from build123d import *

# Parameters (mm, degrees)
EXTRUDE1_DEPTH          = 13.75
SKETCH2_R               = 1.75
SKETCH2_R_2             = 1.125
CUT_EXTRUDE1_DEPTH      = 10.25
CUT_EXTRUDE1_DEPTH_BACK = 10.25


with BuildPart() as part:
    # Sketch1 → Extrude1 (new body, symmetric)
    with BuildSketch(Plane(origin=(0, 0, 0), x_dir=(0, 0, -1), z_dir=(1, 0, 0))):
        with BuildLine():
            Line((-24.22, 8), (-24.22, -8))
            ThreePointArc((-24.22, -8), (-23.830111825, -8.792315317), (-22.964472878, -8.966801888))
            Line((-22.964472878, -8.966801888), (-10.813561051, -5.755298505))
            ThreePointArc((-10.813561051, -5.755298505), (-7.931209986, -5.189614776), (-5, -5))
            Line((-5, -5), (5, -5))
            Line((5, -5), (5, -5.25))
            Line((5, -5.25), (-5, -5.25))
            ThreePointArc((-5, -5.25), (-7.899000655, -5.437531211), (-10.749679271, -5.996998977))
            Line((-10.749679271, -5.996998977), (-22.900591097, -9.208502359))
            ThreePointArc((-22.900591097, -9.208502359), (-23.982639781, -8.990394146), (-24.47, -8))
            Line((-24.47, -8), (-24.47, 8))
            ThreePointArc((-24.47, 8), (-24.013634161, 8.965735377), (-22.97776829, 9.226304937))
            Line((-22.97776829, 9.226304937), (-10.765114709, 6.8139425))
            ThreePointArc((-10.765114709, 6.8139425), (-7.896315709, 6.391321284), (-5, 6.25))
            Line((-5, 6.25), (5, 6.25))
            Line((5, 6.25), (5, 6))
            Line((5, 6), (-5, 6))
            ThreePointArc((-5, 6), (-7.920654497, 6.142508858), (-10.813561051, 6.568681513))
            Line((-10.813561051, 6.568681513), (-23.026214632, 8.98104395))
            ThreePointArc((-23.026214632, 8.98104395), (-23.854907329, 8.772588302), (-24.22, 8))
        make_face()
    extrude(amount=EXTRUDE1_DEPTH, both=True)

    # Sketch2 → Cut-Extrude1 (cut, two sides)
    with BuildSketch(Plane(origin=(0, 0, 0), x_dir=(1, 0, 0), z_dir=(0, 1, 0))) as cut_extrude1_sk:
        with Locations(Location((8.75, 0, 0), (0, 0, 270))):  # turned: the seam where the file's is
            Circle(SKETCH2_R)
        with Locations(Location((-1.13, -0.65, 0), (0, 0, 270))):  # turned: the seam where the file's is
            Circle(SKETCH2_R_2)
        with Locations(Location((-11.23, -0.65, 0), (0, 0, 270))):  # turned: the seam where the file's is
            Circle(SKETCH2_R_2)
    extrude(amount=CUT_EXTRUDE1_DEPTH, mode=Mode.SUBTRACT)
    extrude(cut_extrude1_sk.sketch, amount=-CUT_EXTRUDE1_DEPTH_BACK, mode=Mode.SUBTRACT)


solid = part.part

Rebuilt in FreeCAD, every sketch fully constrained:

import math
import FreeCAD as App
import Part
import Sketcher
Q = App.Units.Quantity

doc = App.newDocument("Part")
body = doc.addObject("PartDesign::Body", "Body")

# Sketch on YZ plane
sketch1 = body.newObject("Sketcher::SketchObject", "Sketch")
sketch1.AttachmentSupport = (doc.getObject("YZ_Plane"), [""])
sketch1.MapMode = "FlatFace"
sketch1.addGeometry([
    Part.LineSegment(App.Vector(-8, 24.22, 0), App.Vector(8, 24.22, 0)),  # 0
    Part.ArcOfCircle(Part.Circle(App.Vector(8, 23.22, 0), App.Vector(0, 0, 1), 1), math.radians(-11.173777), math.radians(90)),  # 1
    Part.LineSegment(App.Vector(8.981044, 23.026215, 0), App.Vector(6.568682, 10.813561, 0)),  # 2
    Part.ArcOfCircle(Part.Circle(App.Vector(36, 5, 0), App.Vector(0, 0, 1), 30), math.radians(168.826223), math.radians(180)),  # 3
    Part.LineSegment(App.Vector(6, 5, 0), App.Vector(6, -5, 0)),  # 4
    Part.LineSegment(App.Vector(6, -5, 0), App.Vector(6.25, -5, 0)),  # 5
    Part.LineSegment(App.Vector(6.25, -5, 0), App.Vector(6.25, 5, 0)),  # 6
    Part.ArcOfCircle(Part.Circle(App.Vector(36, 5, 0), App.Vector(0, 0, 1), 29.75), math.radians(168.826223), math.radians(180)),  # 7
    Part.LineSegment(App.Vector(6.813942, 10.765115, 0), App.Vector(9.226305, 22.977768, 0)),  # 8
    Part.ArcOfCircle(Part.Circle(App.Vector(8, 23.22, 0), App.Vector(0, 0, 1), 1.25), math.radians(-11.173777), math.radians(90)),  # 9
    Part.LineSegment(App.Vector(8, 24.47, 0), App.Vector(-8, 24.47, 0)),  # 10
    Part.ArcOfCircle(Part.Circle(App.Vector(-8, 23.22, 0), App.Vector(0, 0, 1), 1.25), math.radians(90), math.radians(194.804822)),  # 11
    Part.LineSegment(App.Vector(-9.208502, 22.900591, 0), App.Vector(-5.996999, 10.749679, 0)),  # 12
    Part.ArcOfCircle(Part.Circle(App.Vector(-27.751248, 5, 0), App.Vector(0, 0, 1), 22.501248), math.radians(0), math.radians(14.804822)),  # 13
    Part.LineSegment(App.Vector(-5.25, 5, 0), App.Vector(-5.25, -5, 0)),  # 14
    Part.LineSegment(App.Vector(-5.25, -5, 0), App.Vector(-5, -5, 0)),  # 15
    Part.LineSegment(App.Vector(-5, -5, 0), App.Vector(-5, 5, 0)),  # 16
    Part.ArcOfCircle(Part.Circle(App.Vector(-27.751249, 5, 0), App.Vector(0, 0, 1), 22.751249), math.radians(0), math.radians(14.804822)),  # 17
    Part.LineSegment(App.Vector(-5.755299, 10.813561, 0), App.Vector(-8.966802, 22.964473, 0)),  # 18
    Part.ArcOfCircle(Part.Circle(App.Vector(-8, 23.22, 0), App.Vector(0, 0, 1), 1), math.radians(90), math.radians(194.804822)),  # 19
], False)
sketch1.addConstraint([
    Sketcher.Constraint("Tangent", 0, 2, 1, 2),
    Sketcher.Constraint("Tangent", 1, 1, 2, 1),
    Sketcher.Constraint("Tangent", 2, 2, 3, 1),
    Sketcher.Constraint("Tangent", 3, 2, 4, 1),
    Sketcher.Constraint("Coincident", 4, 2, 5, 1),
    Sketcher.Constraint("Coincident", 5, 2, 6, 1),
    Sketcher.Constraint("Tangent", 6, 2, 7, 2),
    Sketcher.Constraint("Tangent", 7, 1, 8, 1),
    Sketcher.Constraint("Tangent", 8, 2, 9, 1),
    Sketcher.Constraint("Tangent", 9, 2, 10, 1),
    Sketcher.Constraint("Tangent", 10, 2, 11, 1),
    Sketcher.Constraint("Tangent", 11, 2, 12, 1),
    Sketcher.Constraint("Tangent", 12, 2, 13, 2),
    Sketcher.Constraint("Tangent", 13, 1, 14, 1),
    Sketcher.Constraint("Coincident", 14, 2, 15, 1),
    Sketcher.Constraint("Coincident", 15, 2, 16, 1),
    Sketcher.Constraint("Tangent", 16, 2, 17, 1),
    Sketcher.Constraint("Tangent", 17, 2, 18, 1),
    Sketcher.Constraint("Tangent", 18, 2, 19, 2),
    Sketcher.Constraint("Tangent", 19, 1, 0, 1),
    Sketcher.Constraint("Horizontal", 0),
    Sketcher.Constraint("Vertical", 4),
    Sketcher.Constraint("Horizontal", 5),
    Sketcher.Constraint("Vertical", 6),
    Sketcher.Constraint("Horizontal", 10),
    Sketcher.Constraint("Vertical", 14),
    Sketcher.Constraint("Horizontal", 15),
    Sketcher.Constraint("Vertical", 16),
    Sketcher.Constraint("Coincident", 7, 3, 3, 3),
    Sketcher.Constraint("Coincident", 9, 3, 1, 3),
    Sketcher.Constraint("Coincident", 17, 3, 13, 3),
    Sketcher.Constraint("Coincident", 19, 3, 11, 3),
    Sketcher.Constraint("Equal", 9, 11),
    Sketcher.Constraint("Parallel", 2, 8),
    Sketcher.Constraint("Parallel", 12, 18),
    Sketcher.Constraint("Horizontal", 7, 3, 13, 3),
    Sketcher.Constraint("Horizontal", 5, 2, 14, 2),
    Sketcher.Constraint("Horizontal", 2, 2, 17, 2),
    Sketcher.Constraint("Radius", 1, Q("1 mm")),
    Sketcher.Constraint("Radius", 3, Q("30 mm")),
    Sketcher.Constraint("DistanceX", 0, 1, 0, 2, Q("16 mm")),
    Sketcher.Constraint("DistanceY", 4, 2, 4, 1, Q("10 mm")),
    Sketcher.Constraint("Radius", 7, Q("29.75 mm")),
    Sketcher.Constraint("DistanceX", -1, 1, 1, 3, Q("8 mm")),
    Sketcher.Constraint("DistanceX", -1, 1, 3, 3, Q("36 mm")),
    Sketcher.Constraint("DistanceY", -1, 1, 3, 3, Q("5 mm")),
    Sketcher.Constraint("DistanceX", 15, 2, -1, 1, Q("5 mm")),
    Sketcher.Constraint("DistanceY", -1, 1, 1, 3, Q("23.22 mm")),
])
pad1 = body.newObject("PartDesign::Pad", "Pad")
pad1.Profile = sketch1
pad1.Length = 27.5
pad1.Midplane = True

# Sketch on XZ plane
sketch2 = body.newObject("Sketcher::SketchObject", "Sketch001")
sketch2.AttachmentSupport = (doc.getObject("XZ_Plane"), [""])
sketch2.MapMode = "FlatFace"
sketch2.addGeometry([
    Part.Circle(App.Vector(8.75, 0, 0), App.Vector(0, 0, 1), 1.75),
    Part.Circle(App.Vector(-1.13, 0.65, 0), App.Vector(0, 0, 1), 1.125),
    Part.Circle(App.Vector(-11.23, 0.65, 0), App.Vector(0, 0, 1), 1.125),
], False)
sketch2.addConstraint([
    Sketcher.Constraint("Equal", 1, 2),
    Sketcher.Constraint("PointOnObject", 0, 3, -1),
    Sketcher.Constraint("Horizontal", 1, 3, 2, 3),
    Sketcher.Constraint("Diameter", 0, Q("3.5 mm")),
    Sketcher.Constraint("Diameter", 1, Q("2.25 mm")),
    Sketcher.Constraint("DistanceX", 2, 3, 1, 3, Q("10.1 mm")),
    Sketcher.Constraint("DistanceX", -1, 1, 0, 3, Q("8.75 mm")),
    Sketcher.Constraint("DistanceX", 1, 3, -1, 1, Q("1.13 mm")),
    Sketcher.Constraint("DistanceY", -1, 1, 1, 3, Q("0.65 mm")),
])
pocket1 = body.newObject("PartDesign::Pocket", "Pocket")
pocket1.Profile = sketch2
pocket1.Type = "ThroughAll"
pocket1.Midplane = True

doc.recompute()
